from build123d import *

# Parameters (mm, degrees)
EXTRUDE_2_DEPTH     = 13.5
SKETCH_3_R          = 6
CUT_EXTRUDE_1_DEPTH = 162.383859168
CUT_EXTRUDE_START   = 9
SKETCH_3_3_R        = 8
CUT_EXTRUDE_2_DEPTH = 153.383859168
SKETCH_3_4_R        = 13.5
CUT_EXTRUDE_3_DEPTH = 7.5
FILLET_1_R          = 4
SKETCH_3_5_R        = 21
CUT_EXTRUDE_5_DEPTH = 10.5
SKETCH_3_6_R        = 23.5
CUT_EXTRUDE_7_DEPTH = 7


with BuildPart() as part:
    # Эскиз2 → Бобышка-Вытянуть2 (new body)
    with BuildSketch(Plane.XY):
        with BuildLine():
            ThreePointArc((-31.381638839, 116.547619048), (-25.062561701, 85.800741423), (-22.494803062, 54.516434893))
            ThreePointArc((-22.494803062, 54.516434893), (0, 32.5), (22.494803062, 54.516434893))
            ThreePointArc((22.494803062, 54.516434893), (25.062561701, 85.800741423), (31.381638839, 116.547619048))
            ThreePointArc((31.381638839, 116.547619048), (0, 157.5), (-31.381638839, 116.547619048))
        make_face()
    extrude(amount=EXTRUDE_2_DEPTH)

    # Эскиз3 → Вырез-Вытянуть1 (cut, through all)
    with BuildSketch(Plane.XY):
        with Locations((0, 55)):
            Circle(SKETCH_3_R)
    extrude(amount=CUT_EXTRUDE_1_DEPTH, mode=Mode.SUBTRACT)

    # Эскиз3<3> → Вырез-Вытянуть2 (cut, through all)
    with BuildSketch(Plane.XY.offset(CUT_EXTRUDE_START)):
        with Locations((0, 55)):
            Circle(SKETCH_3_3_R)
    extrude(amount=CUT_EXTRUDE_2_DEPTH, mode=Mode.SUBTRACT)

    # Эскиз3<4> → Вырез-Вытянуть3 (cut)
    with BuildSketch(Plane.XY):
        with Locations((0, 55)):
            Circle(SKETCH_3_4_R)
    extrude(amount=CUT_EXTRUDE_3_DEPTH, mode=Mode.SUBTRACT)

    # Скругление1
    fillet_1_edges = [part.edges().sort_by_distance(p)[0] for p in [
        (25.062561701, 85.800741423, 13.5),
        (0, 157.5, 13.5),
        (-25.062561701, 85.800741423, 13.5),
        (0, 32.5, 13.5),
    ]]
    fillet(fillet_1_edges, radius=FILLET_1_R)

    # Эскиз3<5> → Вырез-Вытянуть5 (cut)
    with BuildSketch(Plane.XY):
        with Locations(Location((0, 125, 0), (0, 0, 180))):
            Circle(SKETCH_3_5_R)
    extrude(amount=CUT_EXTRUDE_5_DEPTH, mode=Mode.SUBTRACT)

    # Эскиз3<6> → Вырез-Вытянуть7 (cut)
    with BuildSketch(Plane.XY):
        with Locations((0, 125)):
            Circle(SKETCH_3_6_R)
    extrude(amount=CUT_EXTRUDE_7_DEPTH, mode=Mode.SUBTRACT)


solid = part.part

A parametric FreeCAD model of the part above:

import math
import FreeCAD as App
import Part
import Sketcher
from FreeCAD import Vector


def edges_at(feature, points):
    """Names of the edges that pass closest to the given points."""
    edges = feature.Shape.Edges
    near = lambda p: min(range(len(edges)), key=lambda i: edges[i].distToShape(Part.Vertex(*p))[0])
    return sorted({f"Edge{near(p) + 1}" for p in points})

doc = App.newDocument("Part")
body = doc.addObject("PartDesign::Body", "Body")

sketch1 = body.newObject("Sketcher::SketchObject", "Sketch")
sketch1.AttachmentSupport = (doc.getObject("XY_Plane"), [""])
sketch1.MapMode = "FlatFace"
sketch1.addGeometry(Part.ArcOfCircle(Part.Circle(Vector(-282, 49, 0), Vector(0, 0, 1), 260), math.radians(1.23), math.radians(15.07)), False)
sketch1.addGeometry(Part.ArcOfCircle(Part.Circle(Vector(0, 55, 0), Vector(0, 0, 1), 22), math.radians(-179), math.radians(-1)), False)
sketch1.addGeometry(Part.ArcOfCircle(Part.Circle(Vector(282, 49, 0), Vector(0, 0, 1), 260), math.radians(164.93), math.radians(178.77)), False)
sketch1.addGeometry(Part.ArcOfCircle(Part.Circle(Vector(0, 125, 0), Vector(0, 0, 1), 32), math.radians(-15), math.radians(195)), False)
sketch1.addConstraint(Sketcher.Constraint("Tangent", 0, 1, 1, 1))
sketch1.addConstraint(Sketcher.Constraint("Tangent", 1, 2, 2, 2))
sketch1.addConstraint(Sketcher.Constraint("Tangent", 2, 1, 3, 1))
sketch1.addConstraint(Sketcher.Constraint("Tangent", 3, 2, 0, 2))
sketch1.addConstraint(Sketcher.Constraint("Equal", 0, 2))
sketch1.addConstraint(Sketcher.Constraint("Symmetric", 0, 3, 2, 3, -2))
sketch1.addConstraint(Sketcher.Constraint("Radius", 0, 260.0))
sketch1.addConstraint(Sketcher.Constraint("Radius", 1, 22.5))
sketch1.addConstraint(Sketcher.Constraint("Radius", 3, 32.5))
sketch1.addConstraint(Sketcher.Constraint("DistanceY", -1, 1, 1, 3, 55.0))
sketch1.addConstraint(Sketcher.Constraint("DistanceY", -1, 1, 3, 3, 125.0))
pad1 = body.newObject("PartDesign::Pad", "Pad")
pad1.Profile = sketch1
pad1.Length = 13.5

sketch2 = body.newObject("Sketcher::SketchObject", "Sketch001")
sketch2.AttachmentSupport = (doc.getObject("XY_Plane"), [""])
sketch2.MapMode = "FlatFace"
sketch2.addGeometry(Part.Circle(Vector(0, 55, 0), Vector(0, 0, 1), 6), False)
sketch2.addConstraint(Sketcher.Constraint("PointOnObject", 0, 3, -2))
sketch2.addConstraint(Sketcher.Constraint("Diameter", 0, 12.0))
sketch2.addConstraint(Sketcher.Constraint("DistanceY", -1, 1, 0, 3, 55.0))
pocket1 = body.newObject("PartDesign::Pocket", "Pocket")
pocket1.Profile = sketch2
pocket1.Type = "ThroughAll"
pocket1.Reversed = True

sketch3 = body.newObject("Sketcher::SketchObject", "Sketch002")
sketch3.AttachmentSupport = (doc.getObject("XY_Plane"), [""])
sketch3.MapMode = "FlatFace"
sketch3.AttachmentOffset = App.Placement(Vector(0, 0, 9), App.Rotation())
sketch3.addGeometry(Part.Circle(Vector(0, 55, 0), Vector(0, 0, 1), 8), False)
sketch3.addConstraint(Sketcher.Constraint("PointOnObject", 0, 3, -2))
sketch3.addConstraint(Sketcher.Constraint("Diameter", 0, 16.0))
sketch3.addConstraint(Sketcher.Constraint("DistanceY", -1, 1, 0, 3, 55.0))
pocket2 = body.newObject("PartDesign::Pocket", "Pocket001")
pocket2.Profile = sketch3
pocket2.Type = "ThroughAll"
pocket2.Reversed = True

sketch4 = body.newObject("Sketcher::SketchObject", "Sketch003")
sketch4.AttachmentSupport = (doc.getObject("XY_Plane"), [""])
sketch4.MapMode = "FlatFace"
sketch4.addGeometry(Part.Circle(Vector(0, 55, 0), Vector(0, 0, 1), 14), False)
sketch4.addConstraint(Sketcher.Constraint("PointOnObject", 0, 3, -2))
sketch4.addConstraint(Sketcher.Constraint("Diameter", 0, 27.0))
sketch4.addConstraint(Sketcher.Constraint("DistanceY", -1, 1, 0, 3, 55.0))
pocket3 = body.newObject("PartDesign::Pocket", "Pocket002")
pocket3.Profile = sketch4
pocket3.Length = 7.5
pocket3.Reversed = True
doc.recompute()

fillet = body.newObject("PartDesign::Fillet", "Fillet")
fillet.Base = (pocket3, edges_at(pocket3, [
    (25.063, 85.801, 13.5),
    (0, 157.5, 13.5),
    (-25.063, 85.801, 13.5),
    (0, 32.5, 13.5),
]))
fillet.Radius = 4

sketch5 = body.newObject("Sketcher::SketchObject", "Sketch004")
sketch5.AttachmentSupport = (doc.getObject("XY_Plane"), [""])
sketch5.MapMode = "FlatFace"
sketch5.addGeometry(Part.Circle(Vector(0, 125, 0), Vector(0, 0, 1), 21), False)
sketch5.addConstraint(Sketcher.Constraint("PointOnObject", 0, 3, -2))
sketch5.addConstraint(Sketcher.Constraint("Diameter", 0, 42.0))
sketch5.addConstraint(Sketcher.Constraint("DistanceY", -1, 1, 0, 3, 125.0))
pocket4 = body.newObject("PartDesign::Pocket", "Pocket003")
pocket4.Profile = sketch5
pocket4.Length = 10.5
pocket4.Reversed = True

sketch6 = body.newObject("Sketcher::SketchObject", "Sketch005")
sketch6.AttachmentSupport = (doc.getObject("XY_Plane"), [""])
sketch6.MapMode = "FlatFace"
sketch6.addGeometry(Part.Circle(Vector(0, 125, 0), Vector(0, 0, 1), 24), False)
sketch6.addConstraint(Sketcher.Constraint("PointOnObject", 0, 3, -2))
sketch6.addConstraint(Sketcher.Constraint("Diameter", 0, 47.0))
sketch6.addConstraint(Sketcher.Constraint("DistanceY", -1, 1, 0, 3, 125.0))
pocket5 = body.newObject("PartDesign::Pocket", "Pocket004")
pocket5.Profile = sketch6
pocket5.Length = 7
pocket5.Reversed = True

doc.recompute()
